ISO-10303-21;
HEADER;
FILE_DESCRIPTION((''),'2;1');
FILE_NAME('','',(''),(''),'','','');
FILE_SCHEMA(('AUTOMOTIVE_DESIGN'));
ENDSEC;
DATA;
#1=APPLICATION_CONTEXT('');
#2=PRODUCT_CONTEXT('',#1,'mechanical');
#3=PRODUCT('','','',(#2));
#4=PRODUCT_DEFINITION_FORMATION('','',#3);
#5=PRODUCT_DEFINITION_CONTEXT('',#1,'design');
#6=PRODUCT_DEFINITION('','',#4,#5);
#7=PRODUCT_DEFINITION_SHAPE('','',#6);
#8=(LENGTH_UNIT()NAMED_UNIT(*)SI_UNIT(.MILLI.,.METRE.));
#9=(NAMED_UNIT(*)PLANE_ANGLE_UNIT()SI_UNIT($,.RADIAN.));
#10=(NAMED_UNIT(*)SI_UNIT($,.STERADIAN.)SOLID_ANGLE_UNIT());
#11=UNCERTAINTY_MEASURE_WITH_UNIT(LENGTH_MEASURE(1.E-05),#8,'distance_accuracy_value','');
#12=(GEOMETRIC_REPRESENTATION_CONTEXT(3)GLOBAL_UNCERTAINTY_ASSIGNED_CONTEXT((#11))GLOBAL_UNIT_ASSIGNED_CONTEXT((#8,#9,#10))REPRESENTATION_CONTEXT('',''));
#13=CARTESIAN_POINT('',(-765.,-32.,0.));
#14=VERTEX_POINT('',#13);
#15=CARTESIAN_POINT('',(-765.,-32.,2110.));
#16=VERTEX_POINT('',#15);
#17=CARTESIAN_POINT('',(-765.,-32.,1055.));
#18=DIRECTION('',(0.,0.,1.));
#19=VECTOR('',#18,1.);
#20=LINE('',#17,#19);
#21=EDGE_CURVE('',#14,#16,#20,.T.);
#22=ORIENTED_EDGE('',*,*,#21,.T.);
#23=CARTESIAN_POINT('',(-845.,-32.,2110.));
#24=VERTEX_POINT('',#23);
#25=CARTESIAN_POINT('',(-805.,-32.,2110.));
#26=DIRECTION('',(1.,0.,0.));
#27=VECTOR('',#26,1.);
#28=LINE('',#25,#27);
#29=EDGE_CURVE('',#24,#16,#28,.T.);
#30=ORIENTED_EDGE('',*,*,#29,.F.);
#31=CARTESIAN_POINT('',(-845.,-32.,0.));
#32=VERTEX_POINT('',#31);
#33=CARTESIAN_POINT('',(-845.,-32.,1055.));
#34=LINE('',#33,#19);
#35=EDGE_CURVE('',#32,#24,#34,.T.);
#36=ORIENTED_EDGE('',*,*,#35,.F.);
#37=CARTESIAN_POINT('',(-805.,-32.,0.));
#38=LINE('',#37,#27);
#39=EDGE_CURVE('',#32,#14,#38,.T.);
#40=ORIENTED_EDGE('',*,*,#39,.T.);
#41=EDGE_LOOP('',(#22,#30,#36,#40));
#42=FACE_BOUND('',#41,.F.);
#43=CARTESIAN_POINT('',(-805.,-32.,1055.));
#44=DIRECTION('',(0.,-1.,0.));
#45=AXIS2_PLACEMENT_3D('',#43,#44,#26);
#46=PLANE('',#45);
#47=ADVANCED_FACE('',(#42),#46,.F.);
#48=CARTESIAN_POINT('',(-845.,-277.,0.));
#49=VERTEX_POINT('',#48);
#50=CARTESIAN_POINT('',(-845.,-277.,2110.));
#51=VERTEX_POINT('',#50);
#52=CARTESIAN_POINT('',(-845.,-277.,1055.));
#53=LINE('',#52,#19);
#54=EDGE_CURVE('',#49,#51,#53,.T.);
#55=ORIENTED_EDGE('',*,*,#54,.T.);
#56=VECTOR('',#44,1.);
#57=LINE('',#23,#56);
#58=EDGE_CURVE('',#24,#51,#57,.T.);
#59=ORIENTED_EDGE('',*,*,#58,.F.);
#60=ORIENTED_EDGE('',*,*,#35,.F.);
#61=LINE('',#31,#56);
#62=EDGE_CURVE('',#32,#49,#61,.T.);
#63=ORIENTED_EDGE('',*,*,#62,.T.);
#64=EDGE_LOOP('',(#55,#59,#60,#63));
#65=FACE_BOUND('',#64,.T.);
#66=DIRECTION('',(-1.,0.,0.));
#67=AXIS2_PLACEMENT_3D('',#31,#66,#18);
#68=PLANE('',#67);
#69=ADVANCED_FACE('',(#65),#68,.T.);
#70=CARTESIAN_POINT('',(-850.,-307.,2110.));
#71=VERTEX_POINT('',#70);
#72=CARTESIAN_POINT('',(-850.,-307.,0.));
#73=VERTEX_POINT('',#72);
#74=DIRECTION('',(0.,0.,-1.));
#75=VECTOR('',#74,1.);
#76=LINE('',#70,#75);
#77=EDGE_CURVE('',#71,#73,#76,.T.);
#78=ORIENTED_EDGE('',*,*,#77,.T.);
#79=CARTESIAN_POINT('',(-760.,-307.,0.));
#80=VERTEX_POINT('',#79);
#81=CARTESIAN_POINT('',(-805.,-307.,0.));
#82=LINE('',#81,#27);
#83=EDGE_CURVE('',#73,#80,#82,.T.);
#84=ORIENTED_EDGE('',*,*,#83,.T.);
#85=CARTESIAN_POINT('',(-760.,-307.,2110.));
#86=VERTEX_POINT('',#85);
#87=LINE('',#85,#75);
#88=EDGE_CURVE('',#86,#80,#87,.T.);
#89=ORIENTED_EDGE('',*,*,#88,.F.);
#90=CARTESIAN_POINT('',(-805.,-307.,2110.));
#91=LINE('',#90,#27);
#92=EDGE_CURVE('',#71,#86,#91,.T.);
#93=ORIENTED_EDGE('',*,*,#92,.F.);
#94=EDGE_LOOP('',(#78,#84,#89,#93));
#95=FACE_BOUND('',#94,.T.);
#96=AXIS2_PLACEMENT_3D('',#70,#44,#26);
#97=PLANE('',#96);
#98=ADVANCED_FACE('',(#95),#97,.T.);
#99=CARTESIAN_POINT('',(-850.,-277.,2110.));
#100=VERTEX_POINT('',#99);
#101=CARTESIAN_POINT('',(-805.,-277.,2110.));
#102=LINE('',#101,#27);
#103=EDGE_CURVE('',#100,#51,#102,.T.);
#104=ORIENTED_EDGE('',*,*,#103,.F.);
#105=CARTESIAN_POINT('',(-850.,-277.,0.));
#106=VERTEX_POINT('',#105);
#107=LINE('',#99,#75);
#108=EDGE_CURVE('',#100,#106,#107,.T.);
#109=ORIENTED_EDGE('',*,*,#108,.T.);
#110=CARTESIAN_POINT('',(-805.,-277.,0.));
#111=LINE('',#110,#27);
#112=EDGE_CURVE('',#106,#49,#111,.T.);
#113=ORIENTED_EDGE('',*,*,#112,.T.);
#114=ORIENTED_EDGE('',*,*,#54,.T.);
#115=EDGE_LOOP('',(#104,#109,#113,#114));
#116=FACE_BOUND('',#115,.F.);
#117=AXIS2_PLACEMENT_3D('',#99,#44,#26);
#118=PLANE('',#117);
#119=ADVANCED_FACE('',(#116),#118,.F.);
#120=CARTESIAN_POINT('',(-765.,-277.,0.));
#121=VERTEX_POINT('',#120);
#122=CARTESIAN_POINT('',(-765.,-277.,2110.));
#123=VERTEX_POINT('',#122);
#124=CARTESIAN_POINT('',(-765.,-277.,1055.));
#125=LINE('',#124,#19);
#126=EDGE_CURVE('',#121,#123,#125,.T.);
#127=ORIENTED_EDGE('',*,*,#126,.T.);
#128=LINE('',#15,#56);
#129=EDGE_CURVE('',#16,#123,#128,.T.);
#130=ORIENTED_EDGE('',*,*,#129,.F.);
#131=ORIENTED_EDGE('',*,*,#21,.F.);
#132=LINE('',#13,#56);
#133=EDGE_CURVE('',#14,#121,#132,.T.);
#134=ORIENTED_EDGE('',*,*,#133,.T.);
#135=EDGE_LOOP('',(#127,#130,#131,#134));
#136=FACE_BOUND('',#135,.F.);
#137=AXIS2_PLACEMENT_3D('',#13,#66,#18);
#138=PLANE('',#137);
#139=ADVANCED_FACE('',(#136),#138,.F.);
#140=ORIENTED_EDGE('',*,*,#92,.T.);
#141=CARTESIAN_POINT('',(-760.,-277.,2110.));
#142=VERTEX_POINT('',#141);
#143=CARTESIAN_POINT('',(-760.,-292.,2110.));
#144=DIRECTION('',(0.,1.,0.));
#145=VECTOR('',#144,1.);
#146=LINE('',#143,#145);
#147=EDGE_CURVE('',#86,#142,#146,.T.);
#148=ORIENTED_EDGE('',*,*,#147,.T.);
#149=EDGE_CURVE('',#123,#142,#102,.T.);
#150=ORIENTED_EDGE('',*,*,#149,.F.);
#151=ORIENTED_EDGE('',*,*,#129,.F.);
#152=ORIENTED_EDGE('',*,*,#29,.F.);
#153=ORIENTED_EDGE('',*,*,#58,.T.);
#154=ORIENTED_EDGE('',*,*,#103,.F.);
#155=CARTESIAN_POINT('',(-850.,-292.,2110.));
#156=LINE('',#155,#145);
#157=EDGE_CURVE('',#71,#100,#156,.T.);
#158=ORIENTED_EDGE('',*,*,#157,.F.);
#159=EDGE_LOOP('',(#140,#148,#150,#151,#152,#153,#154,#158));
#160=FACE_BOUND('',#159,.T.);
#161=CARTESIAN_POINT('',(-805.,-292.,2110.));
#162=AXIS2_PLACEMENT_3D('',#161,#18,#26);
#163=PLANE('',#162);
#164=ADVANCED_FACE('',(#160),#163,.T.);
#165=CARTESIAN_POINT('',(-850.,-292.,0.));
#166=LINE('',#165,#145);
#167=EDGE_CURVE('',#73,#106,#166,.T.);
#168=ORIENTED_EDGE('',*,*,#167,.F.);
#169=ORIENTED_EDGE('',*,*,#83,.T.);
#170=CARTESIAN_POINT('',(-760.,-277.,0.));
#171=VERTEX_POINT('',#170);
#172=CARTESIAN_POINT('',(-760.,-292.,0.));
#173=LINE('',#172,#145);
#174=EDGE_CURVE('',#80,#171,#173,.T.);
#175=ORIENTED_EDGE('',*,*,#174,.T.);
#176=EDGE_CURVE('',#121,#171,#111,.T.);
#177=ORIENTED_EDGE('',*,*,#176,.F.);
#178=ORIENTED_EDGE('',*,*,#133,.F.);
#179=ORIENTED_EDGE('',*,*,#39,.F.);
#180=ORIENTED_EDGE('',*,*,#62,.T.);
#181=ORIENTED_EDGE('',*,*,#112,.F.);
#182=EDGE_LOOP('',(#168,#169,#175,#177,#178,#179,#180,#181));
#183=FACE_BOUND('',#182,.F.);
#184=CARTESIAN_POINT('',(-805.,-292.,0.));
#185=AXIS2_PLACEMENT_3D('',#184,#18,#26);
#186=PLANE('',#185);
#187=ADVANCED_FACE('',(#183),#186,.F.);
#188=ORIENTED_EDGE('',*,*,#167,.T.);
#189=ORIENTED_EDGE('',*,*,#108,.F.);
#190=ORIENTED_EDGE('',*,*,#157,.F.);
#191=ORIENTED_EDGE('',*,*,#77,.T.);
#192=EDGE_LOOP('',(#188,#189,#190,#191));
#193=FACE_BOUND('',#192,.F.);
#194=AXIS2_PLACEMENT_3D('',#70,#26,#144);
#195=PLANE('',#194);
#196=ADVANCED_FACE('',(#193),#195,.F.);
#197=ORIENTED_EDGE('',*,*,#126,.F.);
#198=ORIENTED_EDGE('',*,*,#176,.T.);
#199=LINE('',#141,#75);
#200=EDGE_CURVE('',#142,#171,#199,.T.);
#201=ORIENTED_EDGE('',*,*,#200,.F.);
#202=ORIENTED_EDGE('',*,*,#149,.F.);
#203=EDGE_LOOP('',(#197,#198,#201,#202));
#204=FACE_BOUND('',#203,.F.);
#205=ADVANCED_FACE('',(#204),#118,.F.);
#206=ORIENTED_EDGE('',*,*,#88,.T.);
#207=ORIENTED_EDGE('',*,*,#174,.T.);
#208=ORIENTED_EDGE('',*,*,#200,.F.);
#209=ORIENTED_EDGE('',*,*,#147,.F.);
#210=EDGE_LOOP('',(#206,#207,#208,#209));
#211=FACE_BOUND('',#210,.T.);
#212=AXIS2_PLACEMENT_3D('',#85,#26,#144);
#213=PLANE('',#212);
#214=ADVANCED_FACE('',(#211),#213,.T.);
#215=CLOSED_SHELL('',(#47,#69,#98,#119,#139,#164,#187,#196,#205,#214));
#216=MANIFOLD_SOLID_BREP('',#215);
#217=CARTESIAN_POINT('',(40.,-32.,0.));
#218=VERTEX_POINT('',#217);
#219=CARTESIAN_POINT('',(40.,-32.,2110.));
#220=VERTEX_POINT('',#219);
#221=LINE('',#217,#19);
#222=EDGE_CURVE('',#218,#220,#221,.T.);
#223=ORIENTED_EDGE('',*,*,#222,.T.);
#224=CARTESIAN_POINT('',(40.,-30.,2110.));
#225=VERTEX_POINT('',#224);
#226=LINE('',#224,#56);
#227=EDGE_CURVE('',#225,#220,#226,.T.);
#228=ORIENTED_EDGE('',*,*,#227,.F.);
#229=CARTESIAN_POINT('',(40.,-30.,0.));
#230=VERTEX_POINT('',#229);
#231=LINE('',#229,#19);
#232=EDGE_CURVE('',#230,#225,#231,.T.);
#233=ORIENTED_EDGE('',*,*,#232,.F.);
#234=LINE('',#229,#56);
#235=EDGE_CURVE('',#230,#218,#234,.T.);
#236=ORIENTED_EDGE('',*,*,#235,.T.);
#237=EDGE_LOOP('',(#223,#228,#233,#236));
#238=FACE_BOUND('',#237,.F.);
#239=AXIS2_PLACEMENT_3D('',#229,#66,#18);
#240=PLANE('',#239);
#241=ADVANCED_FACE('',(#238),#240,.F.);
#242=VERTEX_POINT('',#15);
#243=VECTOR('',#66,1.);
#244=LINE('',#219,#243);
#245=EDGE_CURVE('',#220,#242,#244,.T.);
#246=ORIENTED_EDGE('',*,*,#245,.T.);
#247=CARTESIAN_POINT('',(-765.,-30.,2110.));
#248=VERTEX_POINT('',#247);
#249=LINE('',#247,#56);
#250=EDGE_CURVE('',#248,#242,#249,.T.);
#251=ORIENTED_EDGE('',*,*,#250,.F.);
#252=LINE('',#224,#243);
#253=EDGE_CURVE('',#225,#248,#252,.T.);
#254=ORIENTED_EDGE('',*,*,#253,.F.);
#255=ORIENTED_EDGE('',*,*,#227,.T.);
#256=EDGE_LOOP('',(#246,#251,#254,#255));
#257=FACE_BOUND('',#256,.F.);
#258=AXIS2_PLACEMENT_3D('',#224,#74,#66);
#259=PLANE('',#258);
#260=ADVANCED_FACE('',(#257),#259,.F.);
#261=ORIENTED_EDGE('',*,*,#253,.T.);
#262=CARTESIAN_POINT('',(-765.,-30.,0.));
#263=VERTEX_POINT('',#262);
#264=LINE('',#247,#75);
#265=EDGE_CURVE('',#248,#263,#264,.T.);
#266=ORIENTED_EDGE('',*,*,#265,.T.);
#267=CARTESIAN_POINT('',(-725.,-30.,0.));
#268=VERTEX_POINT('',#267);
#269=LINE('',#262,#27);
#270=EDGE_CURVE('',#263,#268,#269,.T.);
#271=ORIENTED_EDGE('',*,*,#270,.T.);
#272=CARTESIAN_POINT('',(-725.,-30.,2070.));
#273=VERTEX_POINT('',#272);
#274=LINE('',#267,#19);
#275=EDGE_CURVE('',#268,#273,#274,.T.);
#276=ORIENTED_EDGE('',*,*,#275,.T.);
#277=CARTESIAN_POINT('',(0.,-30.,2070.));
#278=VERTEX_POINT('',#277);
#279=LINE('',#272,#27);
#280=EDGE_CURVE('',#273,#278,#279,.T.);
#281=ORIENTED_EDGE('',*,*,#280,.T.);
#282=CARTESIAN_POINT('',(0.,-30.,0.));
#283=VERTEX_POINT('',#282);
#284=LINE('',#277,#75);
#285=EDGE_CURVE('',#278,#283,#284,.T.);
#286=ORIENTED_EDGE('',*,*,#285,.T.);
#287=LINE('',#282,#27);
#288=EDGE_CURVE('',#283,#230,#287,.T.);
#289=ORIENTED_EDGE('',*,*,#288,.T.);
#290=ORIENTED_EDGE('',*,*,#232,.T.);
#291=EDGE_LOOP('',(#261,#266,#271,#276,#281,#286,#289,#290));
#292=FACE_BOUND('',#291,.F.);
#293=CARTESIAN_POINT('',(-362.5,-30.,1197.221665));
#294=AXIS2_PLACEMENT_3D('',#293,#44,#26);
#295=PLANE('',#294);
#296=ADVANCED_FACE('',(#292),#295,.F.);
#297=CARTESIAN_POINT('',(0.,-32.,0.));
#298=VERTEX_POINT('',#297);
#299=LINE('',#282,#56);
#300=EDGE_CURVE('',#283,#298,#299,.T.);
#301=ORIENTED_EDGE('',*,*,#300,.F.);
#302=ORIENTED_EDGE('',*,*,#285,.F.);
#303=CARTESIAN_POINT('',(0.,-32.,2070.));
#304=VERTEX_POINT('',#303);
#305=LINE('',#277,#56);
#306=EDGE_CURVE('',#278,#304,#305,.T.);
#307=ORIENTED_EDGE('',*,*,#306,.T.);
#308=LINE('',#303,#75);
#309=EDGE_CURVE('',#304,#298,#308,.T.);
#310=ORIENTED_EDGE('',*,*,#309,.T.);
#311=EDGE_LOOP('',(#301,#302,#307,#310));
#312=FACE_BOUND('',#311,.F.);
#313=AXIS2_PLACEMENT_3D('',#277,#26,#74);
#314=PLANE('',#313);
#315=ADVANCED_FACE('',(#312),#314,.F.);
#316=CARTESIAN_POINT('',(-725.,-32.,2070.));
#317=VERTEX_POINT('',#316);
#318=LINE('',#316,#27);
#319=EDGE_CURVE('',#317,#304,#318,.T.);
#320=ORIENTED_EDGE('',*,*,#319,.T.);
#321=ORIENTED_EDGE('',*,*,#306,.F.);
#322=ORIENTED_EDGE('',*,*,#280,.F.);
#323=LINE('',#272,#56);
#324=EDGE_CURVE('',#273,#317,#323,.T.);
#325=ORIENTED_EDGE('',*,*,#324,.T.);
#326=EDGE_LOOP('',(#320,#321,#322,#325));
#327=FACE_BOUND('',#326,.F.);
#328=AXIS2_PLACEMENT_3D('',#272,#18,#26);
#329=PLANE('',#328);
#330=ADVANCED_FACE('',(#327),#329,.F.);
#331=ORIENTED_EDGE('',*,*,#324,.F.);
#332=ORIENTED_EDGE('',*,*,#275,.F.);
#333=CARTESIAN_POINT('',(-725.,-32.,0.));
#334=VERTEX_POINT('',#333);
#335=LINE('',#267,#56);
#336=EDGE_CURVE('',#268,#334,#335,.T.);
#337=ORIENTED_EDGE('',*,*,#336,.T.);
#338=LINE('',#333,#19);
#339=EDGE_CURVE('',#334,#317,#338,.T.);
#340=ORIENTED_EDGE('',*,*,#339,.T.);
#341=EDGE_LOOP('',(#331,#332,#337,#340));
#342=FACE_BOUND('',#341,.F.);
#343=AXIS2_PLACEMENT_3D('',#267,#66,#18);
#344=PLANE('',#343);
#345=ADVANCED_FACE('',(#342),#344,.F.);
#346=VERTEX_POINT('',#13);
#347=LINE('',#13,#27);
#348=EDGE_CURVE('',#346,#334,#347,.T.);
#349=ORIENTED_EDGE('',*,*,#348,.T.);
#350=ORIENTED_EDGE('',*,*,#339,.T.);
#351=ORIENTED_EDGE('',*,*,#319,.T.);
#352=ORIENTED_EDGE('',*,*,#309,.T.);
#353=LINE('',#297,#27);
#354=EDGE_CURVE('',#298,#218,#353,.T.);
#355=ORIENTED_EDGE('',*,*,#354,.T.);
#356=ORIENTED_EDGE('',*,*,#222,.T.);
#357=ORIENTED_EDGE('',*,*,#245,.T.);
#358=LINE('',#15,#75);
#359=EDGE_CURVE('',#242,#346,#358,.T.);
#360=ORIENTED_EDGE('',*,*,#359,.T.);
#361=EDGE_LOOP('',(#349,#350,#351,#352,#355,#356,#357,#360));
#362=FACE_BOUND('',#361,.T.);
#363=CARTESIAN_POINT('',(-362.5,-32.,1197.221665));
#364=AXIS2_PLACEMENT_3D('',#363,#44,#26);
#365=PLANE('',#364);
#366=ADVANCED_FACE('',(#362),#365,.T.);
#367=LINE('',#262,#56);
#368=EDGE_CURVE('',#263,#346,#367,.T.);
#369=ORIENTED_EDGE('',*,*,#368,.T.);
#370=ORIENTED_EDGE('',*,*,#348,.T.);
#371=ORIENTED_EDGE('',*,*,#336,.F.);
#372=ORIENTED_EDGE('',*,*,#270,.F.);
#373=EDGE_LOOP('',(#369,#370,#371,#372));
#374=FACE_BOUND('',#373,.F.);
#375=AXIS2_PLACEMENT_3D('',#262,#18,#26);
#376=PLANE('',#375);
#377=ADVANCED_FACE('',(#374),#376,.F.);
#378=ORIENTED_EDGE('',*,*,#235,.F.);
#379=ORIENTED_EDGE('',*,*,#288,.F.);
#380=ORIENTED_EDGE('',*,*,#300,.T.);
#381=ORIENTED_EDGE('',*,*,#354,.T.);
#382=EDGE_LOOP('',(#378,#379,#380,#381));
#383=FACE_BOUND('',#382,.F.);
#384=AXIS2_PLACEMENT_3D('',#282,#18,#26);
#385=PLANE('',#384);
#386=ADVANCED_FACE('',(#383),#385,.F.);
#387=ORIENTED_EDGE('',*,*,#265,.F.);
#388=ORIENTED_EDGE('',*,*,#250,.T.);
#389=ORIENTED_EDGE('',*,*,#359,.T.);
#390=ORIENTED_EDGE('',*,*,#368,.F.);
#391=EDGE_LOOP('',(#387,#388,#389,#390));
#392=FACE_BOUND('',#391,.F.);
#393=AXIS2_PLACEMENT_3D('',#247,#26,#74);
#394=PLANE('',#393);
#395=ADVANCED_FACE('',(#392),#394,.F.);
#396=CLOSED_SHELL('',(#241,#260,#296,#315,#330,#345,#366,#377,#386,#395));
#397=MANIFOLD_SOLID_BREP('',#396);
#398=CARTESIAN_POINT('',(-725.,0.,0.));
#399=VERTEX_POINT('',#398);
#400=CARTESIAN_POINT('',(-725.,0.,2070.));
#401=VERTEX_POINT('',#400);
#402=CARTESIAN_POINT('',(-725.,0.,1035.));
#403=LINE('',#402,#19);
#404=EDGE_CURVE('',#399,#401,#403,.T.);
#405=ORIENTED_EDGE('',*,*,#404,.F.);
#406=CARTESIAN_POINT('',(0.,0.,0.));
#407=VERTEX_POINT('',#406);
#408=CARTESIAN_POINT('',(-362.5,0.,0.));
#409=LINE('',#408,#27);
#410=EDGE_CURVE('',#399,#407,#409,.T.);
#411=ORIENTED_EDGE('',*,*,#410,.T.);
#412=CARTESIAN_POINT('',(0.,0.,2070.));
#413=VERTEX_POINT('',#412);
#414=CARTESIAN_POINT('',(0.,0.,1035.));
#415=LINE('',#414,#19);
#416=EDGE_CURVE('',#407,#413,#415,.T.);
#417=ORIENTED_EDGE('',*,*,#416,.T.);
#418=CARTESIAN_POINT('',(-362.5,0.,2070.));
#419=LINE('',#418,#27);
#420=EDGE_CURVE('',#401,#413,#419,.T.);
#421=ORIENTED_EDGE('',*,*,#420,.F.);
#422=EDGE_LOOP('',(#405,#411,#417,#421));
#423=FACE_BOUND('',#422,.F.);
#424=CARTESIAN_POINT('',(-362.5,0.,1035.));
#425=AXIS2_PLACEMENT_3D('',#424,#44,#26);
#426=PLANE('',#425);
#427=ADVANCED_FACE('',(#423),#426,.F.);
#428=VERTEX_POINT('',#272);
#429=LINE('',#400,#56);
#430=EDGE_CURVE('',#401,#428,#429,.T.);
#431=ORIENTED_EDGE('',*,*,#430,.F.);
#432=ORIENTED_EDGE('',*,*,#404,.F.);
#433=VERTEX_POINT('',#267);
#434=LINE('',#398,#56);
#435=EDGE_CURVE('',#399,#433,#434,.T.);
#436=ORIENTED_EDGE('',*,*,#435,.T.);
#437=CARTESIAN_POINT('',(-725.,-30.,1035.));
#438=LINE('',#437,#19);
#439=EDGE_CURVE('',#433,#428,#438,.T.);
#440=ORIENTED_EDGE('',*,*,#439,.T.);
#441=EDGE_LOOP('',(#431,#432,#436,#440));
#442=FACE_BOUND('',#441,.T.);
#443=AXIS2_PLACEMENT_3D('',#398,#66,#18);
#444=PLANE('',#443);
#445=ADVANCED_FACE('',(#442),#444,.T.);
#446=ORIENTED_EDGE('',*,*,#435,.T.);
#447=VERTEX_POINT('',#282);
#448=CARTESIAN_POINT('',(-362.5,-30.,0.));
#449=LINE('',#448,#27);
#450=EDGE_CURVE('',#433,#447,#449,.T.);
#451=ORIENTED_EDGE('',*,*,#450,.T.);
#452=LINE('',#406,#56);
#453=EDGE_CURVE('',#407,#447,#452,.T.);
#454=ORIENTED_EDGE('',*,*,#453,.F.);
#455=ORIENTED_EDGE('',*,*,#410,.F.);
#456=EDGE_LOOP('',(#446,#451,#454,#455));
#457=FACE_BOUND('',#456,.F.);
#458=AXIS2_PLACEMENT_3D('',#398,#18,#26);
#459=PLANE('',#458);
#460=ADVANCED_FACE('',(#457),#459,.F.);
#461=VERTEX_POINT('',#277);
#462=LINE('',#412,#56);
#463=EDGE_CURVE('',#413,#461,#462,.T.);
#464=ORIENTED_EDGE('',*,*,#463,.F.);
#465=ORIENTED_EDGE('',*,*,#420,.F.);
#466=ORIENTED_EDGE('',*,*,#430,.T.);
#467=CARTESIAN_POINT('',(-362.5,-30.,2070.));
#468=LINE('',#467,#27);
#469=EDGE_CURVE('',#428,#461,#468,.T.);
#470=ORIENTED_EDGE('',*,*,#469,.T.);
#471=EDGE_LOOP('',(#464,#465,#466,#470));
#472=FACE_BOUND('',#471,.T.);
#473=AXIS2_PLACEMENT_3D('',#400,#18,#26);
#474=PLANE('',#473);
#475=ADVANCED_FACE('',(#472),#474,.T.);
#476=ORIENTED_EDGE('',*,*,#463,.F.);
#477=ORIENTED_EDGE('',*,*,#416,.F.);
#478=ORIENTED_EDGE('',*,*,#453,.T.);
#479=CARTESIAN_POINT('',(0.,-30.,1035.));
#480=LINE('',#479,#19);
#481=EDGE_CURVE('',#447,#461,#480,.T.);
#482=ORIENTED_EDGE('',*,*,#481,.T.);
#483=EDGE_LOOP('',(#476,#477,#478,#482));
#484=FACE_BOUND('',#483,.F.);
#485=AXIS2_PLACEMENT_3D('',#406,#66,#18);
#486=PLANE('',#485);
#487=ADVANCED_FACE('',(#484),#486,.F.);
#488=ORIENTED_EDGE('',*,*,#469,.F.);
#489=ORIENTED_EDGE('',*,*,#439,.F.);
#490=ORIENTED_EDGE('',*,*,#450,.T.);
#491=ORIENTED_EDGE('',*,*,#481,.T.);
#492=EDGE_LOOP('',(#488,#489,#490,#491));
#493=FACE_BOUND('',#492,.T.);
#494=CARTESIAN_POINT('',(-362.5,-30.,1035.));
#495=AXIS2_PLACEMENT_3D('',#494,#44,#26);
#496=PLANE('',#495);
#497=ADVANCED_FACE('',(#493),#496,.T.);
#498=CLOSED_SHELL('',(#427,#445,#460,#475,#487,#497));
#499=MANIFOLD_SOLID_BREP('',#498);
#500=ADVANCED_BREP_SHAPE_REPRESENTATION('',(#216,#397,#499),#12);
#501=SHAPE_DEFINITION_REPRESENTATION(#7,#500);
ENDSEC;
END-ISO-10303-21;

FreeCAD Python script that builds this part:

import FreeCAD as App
import Part
import Sketcher
from FreeCAD import Vector


def add_polygon(sketch, points):
    """Adds a closed chain of lines whose ends are joined by coincident constraints."""
    first, n = sketch.GeometryCount, len(points)
    for a, b in zip(points, points[1:] + points[:1]):
        sketch.addGeometry(Part.LineSegment(App.Vector(*a, 0), App.Vector(*b, 0)), False)
    for i in range(n):
        sketch.addConstraint(Sketcher.Constraint("Coincident", first + i, 2, first + (i + 1) % n, 1))

doc = App.newDocument("Part")
body = doc.addObject("PartDesign::Body", "Body")

sketch1 = body.newObject("Sketcher::SketchObject", "Sketch")
sketch1.AttachmentSupport = (doc.getObject("XZ_Plane"), [""])
sketch1.MapMode = "FlatFace"
add_polygon(sketch1, [(-725, 2070), (-725, 0), (0, 0), (0, 2070)])
sketch1.addConstraint([
    Sketcher.Constraint("Vertical", 0),
    Sketcher.Constraint("Horizontal", 1),
    Sketcher.Constraint("Vertical", 2),
    Sketcher.Constraint("Horizontal", 3),
    Sketcher.Constraint("Coincident", 1, 2, -1, 1),
    Sketcher.Constraint("DistanceX", 1, 1, 1, 2, 725.0),
    Sketcher.Constraint("DistanceY", 0, 2, 0, 1, 2070.0),
])
pad1 = body.newObject("PartDesign::Pad", "Pad")
pad1.Profile = sketch1
pad1.Length = 30
body2 = doc.addObject("PartDesign::Body", "Body001")

sketch2 = body2.newObject("Sketcher::SketchObject", "Sketch001")
sketch2.AttachmentSupport = (doc.getObject("XZ_Plane001"), [""])
sketch2.MapMode = "FlatFace"
sketch2.AttachmentOffset = App.Placement(Vector(0, 0, 30), App.Rotation())
add_polygon(sketch2, [(-765, 0), (-725, 0), (-725, 2070), (0, 2070), (0, 0), (40, 0), (40, 2110), (-765, 2110)])
sketch2.addConstraint([
    Sketcher.Constraint("Horizontal", 0),
    Sketcher.Constraint("Vertical", 1),
    Sketcher.Constraint("Horizontal", 2),
    Sketcher.Constraint("Vertical", 3),
    Sketcher.Constraint("Horizontal", 4),
    Sketcher.Constraint("Vertical", 5),
    Sketcher.Constraint("Horizontal", 6),
    Sketcher.Constraint("Vertical", 7),
    Sketcher.Constraint("Coincident", 3, 2, -1, 1),
    Sketcher.Constraint("PointOnObject", 0, 2, -1),
    Sketcher.Constraint("Equal", 0, 4),
    Sketcher.Constraint("DistanceX", 0, 1, 0, 2, 40.0),
    Sketcher.Constraint("DistanceX", 2, 1, 2, 2, 725.0),
    Sketcher.Constraint("DistanceY", 1, 1, 1, 2, 2070.0),
    Sketcher.Constraint("DistanceY", 5, 1, 5, 2, 2110.0),
])
pad2 = body2.newObject("PartDesign::Pad", "Pad001")
pad2.Profile = sketch2
pad2.Length = 2
body3 = doc.addObject("PartDesign::Body", "Body002")

sketch3 = body3.newObject("Sketcher::SketchObject", "Sketch002")
sketch3.AttachmentSupport = (doc.getObject("XZ_Plane002"), [""])
sketch3.MapMode = "FlatFace"
sketch3.AttachmentOffset = App.Placement(Vector(0, 0, 32), App.Rotation())
add_polygon(sketch3, [(-845, 2110), (-845, 0), (-765, 0), (-765, 2110)])
sketch3.addConstraint([
    Sketcher.Constraint("Vertical", 0),
    Sketcher.Constraint("Horizontal", 1),
    Sketcher.Constraint("Vertical", 2),
    Sketcher.Constraint("Horizontal", 3),
    Sketcher.Constraint("PointOnObject", 0, 2, -1),
    Sketcher.Constraint("DistanceX", 1, 1, 1, 2, 80.0),
    Sketcher.Constraint("DistanceY", 0, 2, 0, 1, 2110.0),
    Sketcher.Constraint("DistanceX", 0, 2, -1, 1, 845.0),
])
pad3 = body3.newObject("PartDesign::Pad", "Pad002")
pad3.Profile = sketch3
pad3.Length = 245

sketch4 = body3.newObject("Sketcher::SketchObject", "Sketch003")
sketch4.AttachmentSupport = (doc.getObject("XY_Plane002"), [""])
sketch4.MapMode = "FlatFace"
sketch4.AttachmentOffset = App.Placement(Vector(0, 0, 2110), App.Rotation())
add_polygon(sketch4, [(-850, -277), (-850, -307), (-760, -307), (-760, -277)])
sketch4.addConstraint([
    Sketcher.Constraint("Vertical", 0),
    Sketcher.Constraint("Horizontal", 1),
    Sketcher.Constraint("Vertical", 2),
    Sketcher.Constraint("Horizontal", 3),
    Sketcher.Constraint("DistanceX", 1, 1, 1, 2, 90.0),
    Sketcher.Constraint("DistanceY", 0, 2, 0, 1, 30.0),
    Sketcher.Constraint("DistanceX", 0, 2, -1, 1, 850.0),
    Sketcher.Constraint("DistanceY", 0, 2, -1, 1, 307.0),
])
pad4 = body3.newObject("PartDesign::Pad", "Pad003")
pad4.Profile = sketch4
pad4.Length = 2110
pad4.Reversed = True

doc.recompute()
